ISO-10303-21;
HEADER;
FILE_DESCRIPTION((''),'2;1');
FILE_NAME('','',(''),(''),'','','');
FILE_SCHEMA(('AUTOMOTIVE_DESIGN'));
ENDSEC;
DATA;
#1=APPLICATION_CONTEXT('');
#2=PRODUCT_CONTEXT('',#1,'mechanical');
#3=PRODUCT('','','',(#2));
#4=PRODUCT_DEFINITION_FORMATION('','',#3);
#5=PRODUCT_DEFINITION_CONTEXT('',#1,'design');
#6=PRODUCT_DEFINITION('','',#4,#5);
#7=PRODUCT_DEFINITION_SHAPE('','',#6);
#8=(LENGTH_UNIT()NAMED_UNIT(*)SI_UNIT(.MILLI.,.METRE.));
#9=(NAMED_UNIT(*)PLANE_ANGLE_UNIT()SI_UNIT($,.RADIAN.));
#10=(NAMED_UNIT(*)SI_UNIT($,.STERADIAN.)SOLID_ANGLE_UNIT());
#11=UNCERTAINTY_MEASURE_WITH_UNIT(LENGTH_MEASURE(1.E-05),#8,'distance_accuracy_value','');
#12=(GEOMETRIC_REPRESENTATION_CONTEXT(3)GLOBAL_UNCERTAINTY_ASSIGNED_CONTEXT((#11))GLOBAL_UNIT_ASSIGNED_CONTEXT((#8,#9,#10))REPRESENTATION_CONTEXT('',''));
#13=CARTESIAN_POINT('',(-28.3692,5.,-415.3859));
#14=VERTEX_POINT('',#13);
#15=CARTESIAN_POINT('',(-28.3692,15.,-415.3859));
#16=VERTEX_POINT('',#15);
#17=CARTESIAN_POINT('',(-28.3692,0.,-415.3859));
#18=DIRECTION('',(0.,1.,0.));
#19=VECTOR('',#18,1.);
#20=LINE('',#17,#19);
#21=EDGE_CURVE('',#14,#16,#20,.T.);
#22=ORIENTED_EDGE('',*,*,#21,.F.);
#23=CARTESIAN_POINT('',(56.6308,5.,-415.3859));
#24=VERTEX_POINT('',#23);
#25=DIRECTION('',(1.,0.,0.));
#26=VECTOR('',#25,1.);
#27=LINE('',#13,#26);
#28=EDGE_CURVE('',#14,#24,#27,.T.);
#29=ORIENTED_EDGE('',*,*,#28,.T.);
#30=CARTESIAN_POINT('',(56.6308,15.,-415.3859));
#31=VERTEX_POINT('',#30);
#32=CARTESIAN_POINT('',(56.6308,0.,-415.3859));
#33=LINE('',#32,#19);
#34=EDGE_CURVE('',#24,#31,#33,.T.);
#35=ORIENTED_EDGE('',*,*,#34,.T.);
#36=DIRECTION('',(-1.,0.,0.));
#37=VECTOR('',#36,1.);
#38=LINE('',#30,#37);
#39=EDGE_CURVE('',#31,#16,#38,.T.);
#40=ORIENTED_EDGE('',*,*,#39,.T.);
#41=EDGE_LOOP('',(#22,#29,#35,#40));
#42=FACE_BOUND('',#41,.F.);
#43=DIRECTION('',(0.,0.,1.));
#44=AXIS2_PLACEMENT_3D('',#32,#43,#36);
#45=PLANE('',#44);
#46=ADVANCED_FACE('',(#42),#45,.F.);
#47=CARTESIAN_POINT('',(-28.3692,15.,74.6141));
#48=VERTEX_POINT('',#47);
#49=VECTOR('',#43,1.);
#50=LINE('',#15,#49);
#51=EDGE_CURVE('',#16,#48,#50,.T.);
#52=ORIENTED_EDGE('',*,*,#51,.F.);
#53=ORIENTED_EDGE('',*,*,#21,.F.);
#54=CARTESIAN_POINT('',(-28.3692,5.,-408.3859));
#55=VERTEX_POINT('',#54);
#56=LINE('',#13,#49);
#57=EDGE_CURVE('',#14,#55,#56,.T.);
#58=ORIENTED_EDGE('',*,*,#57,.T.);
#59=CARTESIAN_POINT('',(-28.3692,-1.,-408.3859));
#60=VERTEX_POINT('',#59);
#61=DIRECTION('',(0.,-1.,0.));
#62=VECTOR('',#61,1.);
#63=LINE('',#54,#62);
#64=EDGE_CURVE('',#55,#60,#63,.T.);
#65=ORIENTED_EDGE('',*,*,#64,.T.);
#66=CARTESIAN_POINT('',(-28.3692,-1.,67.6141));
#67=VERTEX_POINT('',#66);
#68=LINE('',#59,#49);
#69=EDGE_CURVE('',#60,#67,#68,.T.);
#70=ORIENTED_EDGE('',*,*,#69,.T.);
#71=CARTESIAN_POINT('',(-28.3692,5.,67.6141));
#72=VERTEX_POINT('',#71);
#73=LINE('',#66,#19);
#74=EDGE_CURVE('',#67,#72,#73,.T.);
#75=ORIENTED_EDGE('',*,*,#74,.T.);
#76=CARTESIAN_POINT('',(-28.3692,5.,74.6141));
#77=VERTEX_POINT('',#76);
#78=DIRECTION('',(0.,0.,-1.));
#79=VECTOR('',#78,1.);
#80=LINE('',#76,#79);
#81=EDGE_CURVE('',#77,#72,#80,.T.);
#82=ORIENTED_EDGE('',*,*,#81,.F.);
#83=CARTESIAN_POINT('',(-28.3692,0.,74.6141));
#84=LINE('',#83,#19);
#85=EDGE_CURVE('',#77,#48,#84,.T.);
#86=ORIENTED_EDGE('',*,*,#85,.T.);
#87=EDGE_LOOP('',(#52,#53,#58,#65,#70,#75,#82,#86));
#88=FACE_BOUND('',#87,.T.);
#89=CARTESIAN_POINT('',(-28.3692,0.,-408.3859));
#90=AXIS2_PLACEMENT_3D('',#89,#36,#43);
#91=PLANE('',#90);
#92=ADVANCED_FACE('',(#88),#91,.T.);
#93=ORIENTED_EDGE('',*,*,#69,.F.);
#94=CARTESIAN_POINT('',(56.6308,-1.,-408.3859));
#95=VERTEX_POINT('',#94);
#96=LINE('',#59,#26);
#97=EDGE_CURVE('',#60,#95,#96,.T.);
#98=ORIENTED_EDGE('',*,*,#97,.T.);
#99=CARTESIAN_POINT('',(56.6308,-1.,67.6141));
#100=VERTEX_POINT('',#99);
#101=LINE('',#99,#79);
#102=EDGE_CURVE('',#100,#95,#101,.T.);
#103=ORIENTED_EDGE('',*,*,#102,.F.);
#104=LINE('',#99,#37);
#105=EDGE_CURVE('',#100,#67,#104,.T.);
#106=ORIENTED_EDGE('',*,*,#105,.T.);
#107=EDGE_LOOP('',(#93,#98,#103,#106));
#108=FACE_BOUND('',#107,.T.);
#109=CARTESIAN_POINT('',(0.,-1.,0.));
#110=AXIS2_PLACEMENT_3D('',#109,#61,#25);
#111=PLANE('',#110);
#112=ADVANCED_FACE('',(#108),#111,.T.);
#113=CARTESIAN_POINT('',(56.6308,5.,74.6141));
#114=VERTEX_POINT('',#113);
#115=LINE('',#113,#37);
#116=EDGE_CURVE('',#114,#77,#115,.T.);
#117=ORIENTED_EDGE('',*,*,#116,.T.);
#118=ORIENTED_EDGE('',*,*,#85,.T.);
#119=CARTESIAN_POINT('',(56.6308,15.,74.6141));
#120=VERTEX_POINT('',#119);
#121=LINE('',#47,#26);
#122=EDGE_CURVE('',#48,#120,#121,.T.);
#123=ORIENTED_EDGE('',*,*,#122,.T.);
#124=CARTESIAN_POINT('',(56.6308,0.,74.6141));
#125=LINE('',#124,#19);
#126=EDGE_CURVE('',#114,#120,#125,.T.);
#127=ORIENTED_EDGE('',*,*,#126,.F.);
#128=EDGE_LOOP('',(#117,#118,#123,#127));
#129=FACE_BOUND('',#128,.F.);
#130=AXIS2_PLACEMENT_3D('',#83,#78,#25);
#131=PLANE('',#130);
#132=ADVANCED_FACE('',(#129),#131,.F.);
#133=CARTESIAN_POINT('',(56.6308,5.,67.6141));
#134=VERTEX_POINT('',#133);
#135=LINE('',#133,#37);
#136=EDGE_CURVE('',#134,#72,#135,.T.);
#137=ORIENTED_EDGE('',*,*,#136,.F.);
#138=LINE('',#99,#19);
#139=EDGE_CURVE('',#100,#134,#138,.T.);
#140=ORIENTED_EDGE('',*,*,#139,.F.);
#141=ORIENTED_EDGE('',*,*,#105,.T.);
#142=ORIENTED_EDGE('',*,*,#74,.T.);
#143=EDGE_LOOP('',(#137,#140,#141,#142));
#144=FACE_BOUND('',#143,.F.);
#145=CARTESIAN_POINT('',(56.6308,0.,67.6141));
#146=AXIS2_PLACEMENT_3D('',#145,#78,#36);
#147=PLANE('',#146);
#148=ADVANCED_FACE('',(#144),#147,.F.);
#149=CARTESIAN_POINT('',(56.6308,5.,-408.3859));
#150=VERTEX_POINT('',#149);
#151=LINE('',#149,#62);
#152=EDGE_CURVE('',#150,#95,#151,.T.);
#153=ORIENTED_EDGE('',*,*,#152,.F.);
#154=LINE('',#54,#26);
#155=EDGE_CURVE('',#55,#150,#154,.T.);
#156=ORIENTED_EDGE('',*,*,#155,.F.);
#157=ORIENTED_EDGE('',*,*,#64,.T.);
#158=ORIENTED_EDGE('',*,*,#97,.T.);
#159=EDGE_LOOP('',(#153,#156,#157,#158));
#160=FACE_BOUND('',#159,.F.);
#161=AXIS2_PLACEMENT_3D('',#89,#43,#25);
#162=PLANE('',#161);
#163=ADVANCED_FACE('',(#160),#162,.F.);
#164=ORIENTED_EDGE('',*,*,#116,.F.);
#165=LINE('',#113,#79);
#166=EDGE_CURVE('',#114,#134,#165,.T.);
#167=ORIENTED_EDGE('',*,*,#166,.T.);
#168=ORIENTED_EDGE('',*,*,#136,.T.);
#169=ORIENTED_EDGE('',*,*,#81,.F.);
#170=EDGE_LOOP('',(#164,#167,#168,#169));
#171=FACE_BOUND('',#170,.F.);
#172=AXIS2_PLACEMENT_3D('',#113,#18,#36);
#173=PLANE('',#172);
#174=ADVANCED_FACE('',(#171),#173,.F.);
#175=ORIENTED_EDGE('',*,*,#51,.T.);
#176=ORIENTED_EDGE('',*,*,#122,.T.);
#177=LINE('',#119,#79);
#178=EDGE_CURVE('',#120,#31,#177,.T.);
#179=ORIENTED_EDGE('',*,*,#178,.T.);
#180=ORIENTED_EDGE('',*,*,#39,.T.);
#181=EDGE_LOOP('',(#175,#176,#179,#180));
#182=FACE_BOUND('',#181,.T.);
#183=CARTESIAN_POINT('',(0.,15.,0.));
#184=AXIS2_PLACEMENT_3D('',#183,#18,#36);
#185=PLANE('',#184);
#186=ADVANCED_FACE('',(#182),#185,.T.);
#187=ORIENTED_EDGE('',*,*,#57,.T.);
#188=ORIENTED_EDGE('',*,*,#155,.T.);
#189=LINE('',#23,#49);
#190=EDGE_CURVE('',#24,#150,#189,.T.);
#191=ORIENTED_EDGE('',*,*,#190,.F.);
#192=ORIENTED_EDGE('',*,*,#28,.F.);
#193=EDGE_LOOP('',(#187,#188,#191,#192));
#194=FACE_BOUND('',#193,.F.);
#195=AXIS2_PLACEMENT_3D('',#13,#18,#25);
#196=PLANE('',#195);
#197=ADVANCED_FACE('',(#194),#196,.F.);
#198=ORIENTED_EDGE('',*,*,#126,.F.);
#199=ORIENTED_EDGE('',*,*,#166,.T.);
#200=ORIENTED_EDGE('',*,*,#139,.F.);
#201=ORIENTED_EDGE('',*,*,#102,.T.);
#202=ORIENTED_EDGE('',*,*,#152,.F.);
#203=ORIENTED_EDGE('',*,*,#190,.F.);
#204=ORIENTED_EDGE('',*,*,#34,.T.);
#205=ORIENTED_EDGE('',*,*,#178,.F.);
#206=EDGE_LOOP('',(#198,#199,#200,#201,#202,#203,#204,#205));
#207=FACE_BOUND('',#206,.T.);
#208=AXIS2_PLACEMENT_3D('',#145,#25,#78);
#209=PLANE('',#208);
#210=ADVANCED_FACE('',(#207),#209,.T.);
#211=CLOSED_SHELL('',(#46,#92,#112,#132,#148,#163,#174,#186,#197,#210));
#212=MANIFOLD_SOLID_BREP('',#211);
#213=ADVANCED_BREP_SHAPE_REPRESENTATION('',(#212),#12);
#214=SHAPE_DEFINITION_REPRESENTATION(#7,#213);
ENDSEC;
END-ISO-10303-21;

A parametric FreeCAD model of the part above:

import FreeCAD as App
import Part
import Sketcher

doc = App.newDocument("Part")
params = doc.addObject("Spreadsheet::Sheet", "Params")
for row, (alias, value) in enumerate([
    ("sketch1_width", "85 mm"),
    ("sketch1_height", "490 mm"),
    ("pad1_length", "15 mm"),
    ("sketch2_width", "85 mm"),
    ("sketch2_height", "5 mm"),
    ("pocket1_length", "7 mm"),
    ("sketch3_width", "85 mm"),
    ("sketch3_height", "5 mm"),
    ("pocket2_length", "7 mm"),
    ("sketch4_width", "85 mm"),
    ("sketch4_height", "476 mm"),
    ("pad2_length", "1 mm"),
], start=1):
    params.set(f"A{row}", alias)
    params.set(f"B{row}", "=" + value)
    params.setAlias(f"B{row}", alias)

body = doc.addObject("PartDesign::Body", "Body")

# Sketch on XZ plane
sketch1 = body.newObject("Sketcher::SketchObject", "Sketch")
sketch1.AttachmentSupport = (doc.getObject("XZ_Plane"), [""])
sketch1.MapMode = "FlatFace"
sketch1.addGeometry([
    Part.LineSegment(App.Vector(-28.3692, -415.3859, 0), App.Vector(-28.3692, 74.6141, 0)),
    Part.LineSegment(App.Vector(-28.3692, 74.6141, 0), App.Vector(56.6308, 74.6141, 0)),
    Part.LineSegment(App.Vector(56.6308, 74.6141, 0), App.Vector(56.6308, -415.3859, 0)),
    Part.LineSegment(App.Vector(56.6308, -415.3859, 0), App.Vector(-28.3692, -415.3859, 0)),
], False)
sketch1.addConstraint([
    Sketcher.Constraint("Coincident", 0, 2, 1, 1),
    Sketcher.Constraint("Coincident", 1, 2, 2, 1),
    Sketcher.Constraint("Coincident", 2, 2, 3, 1),
    Sketcher.Constraint("Coincident", 3, 2, 0, 1),
    Sketcher.Constraint("Vertical", 0),
    Sketcher.Constraint("Horizontal", 1),
    Sketcher.Constraint("Vertical", 2),
    Sketcher.Constraint("Horizontal", 3),
    Sketcher.Constraint("DistanceX", 1, 1, 1, 2, 85.0),
    Sketcher.Constraint("DistanceY", 0, 1, 0, 2, 490.0),
    Sketcher.Constraint("DistanceY", -1, 1, 0, 2, 74.614),
    Sketcher.Constraint("DistanceX", 0, 2, -1, 1, 28.3692),
])
sketch1.setExpression("Constraints[8]", "Params.sketch1_width")
sketch1.setExpression("Constraints[9]", "Params.sketch1_height")
pad1 = body.newObject("PartDesign::Pad", "Pad")
pad1.Profile = sketch1
pad1.setExpression("Length", "Params.pad1_length")
pad1.Reversed = True

# Sketch on XY plane
sketch2 = body.newObject("Sketcher::SketchObject", "Sketch001")
sketch2.AttachmentSupport = (doc.getObject("XY_Plane"), [""])
sketch2.MapMode = "FlatFace"
sketch2.AttachmentOffset = App.Placement(App.Vector(0, 0, 74.6141), App.Rotation())
sketch2.addGeometry([
    Part.LineSegment(App.Vector(-28.3692, 0, 0), App.Vector(56.6308, 0, 0)),
    Part.LineSegment(App.Vector(56.6308, 0, 0), App.Vector(56.6308, 5, 0)),
    Part.LineSegment(App.Vector(56.6308, 5, 0), App.Vector(-28.3692, 5, 0)),
    Part.LineSegment(App.Vector(-28.3692, 5, 0), App.Vector(-28.3692, 0, 0)),
], False)
sketch2.addConstraint([
    Sketcher.Constraint("Coincident", 0, 2, 1, 1),
    Sketcher.Constraint("Coincident", 1, 2, 2, 1),
    Sketcher.Constraint("Coincident", 2, 2, 3, 1),
    Sketcher.Constraint("Coincident", 3, 2, 0, 1),
    Sketcher.Constraint("Horizontal", 0),
    Sketcher.Constraint("Vertical", 1),
    Sketcher.Constraint("Horizontal", 2),
    Sketcher.Constraint("Vertical", 3),
    Sketcher.Constraint("PointOnObject", 0, 2, -1),
    Sketcher.Constraint("DistanceX", 0, 1, 0, 2, 85.0),
    Sketcher.Constraint("DistanceY", 1, 1, 1, 2, 5.0),
    Sketcher.Constraint("DistanceX", -1, 1, 0, 2, 56.6308),
])
sketch2.setExpression("Constraints[9]", "Params.sketch2_width")
sketch2.setExpression("Constraints[10]", "Params.sketch2_height")
pocket1 = body.newObject("PartDesign::Pocket", "Pocket")
pocket1.Profile = sketch2
pocket1.setExpression("Length", "Params.pocket1_length")

# Sketch on XY plane
sketch3 = body.newObject("Sketcher::SketchObject", "Sketch002")
sketch3.AttachmentSupport = (doc.getObject("XY_Plane"), [""])
sketch3.MapMode = "FlatFace"
sketch3.AttachmentOffset = App.Placement(App.Vector(0, 0, -415.3859), App.Rotation())
sketch3.addGeometry([
    Part.LineSegment(App.Vector(56.6308, 0, 0), App.Vector(-28.3692, 0, 0)),
    Part.LineSegment(App.Vector(-28.3692, 0, 0), App.Vector(-28.3692, 5, 0)),
    Part.LineSegment(App.Vector(-28.3692, 5, 0), App.Vector(56.6308, 5, 0)),
    Part.LineSegment(App.Vector(56.6308, 5, 0), App.Vector(56.6308, 0, 0)),
], False)
sketch3.addConstraint([
    Sketcher.Constraint("Coincident", 0, 2, 1, 1),
    Sketcher.Constraint("Coincident", 1, 2, 2, 1),
    Sketcher.Constraint("Coincident", 2, 2, 3, 1),
    Sketcher.Constraint("Coincident", 3, 2, 0, 1),
    Sketcher.Constraint("Horizontal", 0),
    Sketcher.Constraint("Vertical", 1),
    Sketcher.Constraint("Horizontal", 2),
    Sketcher.Constraint("Vertical", 3),
    Sketcher.Constraint("PointOnObject", 0, 2, -1),
    Sketcher.Constraint("DistanceX", 0, 2, 0, 1, 85.0),
    Sketcher.Constraint("DistanceY", 1, 1, 1, 2, 5.0),
    Sketcher.Constraint("DistanceX", 0, 2, -1, 1, 28.3692),
])
sketch3.setExpression("Constraints[9]", "Params.sketch3_width")
sketch3.setExpression("Constraints[10]", "Params.sketch3_height")
pocket2 = body.newObject("PartDesign::Pocket", "Pocket001")
pocket2.Profile = sketch3
pocket2.setExpression("Length", "Params.pocket2_length")
pocket2.Reversed = True

# Sketch on XZ plane
sketch4 = body.newObject("Sketcher::SketchObject", "Sketch003")
sketch4.AttachmentSupport = (doc.getObject("XZ_Plane"), [""])
sketch4.MapMode = "FlatFace"
sketch4.addGeometry([
    Part.LineSegment(App.Vector(-28.3692, 67.6141, 0), App.Vector(-28.3692, -408.3859, 0)),
    Part.LineSegment(App.Vector(-28.3692, -408.3859, 0), App.Vector(56.6308, -408.3859, 0)),
    Part.LineSegment(App.Vector(56.6308, -408.3859, 0), App.Vector(56.6308, 67.6141, 0)),
    Part.LineSegment(App.Vector(56.6308, 67.6141, 0), App.Vector(-28.3692, 67.6141, 0)),
], False)
sketch4.addConstraint([
    Sketcher.Constraint("Coincident", 0, 2, 1, 1),
    Sketcher.Constraint("Coincident", 1, 2, 2, 1),
    Sketcher.Constraint("Coincident", 2, 2, 3, 1),
    Sketcher.Constraint("Coincident", 3, 2, 0, 1),
    Sketcher.Constraint("Vertical", 0),
    Sketcher.Constraint("Horizontal", 1),
    Sketcher.Constraint("Vertical", 2),
    Sketcher.Constraint("Horizontal", 3),
    Sketcher.Constraint("DistanceX", 1, 1, 1, 2, 85.0),
    Sketcher.Constraint("DistanceY", 0, 2, 0, 1, 476.0),
    Sketcher.Constraint("DistanceY", 0, 2, -1, 1, 408.386),
    Sketcher.Constraint("DistanceX", 0, 2, -1, 1, 28.3692),
])
sketch4.setExpression("Constraints[8]", "Params.sketch4_width")
sketch4.setExpression("Constraints[9]", "Params.sketch4_height")
pad2 = body.newObject("PartDesign::Pad", "Pad001")
pad2.Profile = sketch4
pad2.setExpression("Length", "Params.pad2_length")

doc.recompute()
